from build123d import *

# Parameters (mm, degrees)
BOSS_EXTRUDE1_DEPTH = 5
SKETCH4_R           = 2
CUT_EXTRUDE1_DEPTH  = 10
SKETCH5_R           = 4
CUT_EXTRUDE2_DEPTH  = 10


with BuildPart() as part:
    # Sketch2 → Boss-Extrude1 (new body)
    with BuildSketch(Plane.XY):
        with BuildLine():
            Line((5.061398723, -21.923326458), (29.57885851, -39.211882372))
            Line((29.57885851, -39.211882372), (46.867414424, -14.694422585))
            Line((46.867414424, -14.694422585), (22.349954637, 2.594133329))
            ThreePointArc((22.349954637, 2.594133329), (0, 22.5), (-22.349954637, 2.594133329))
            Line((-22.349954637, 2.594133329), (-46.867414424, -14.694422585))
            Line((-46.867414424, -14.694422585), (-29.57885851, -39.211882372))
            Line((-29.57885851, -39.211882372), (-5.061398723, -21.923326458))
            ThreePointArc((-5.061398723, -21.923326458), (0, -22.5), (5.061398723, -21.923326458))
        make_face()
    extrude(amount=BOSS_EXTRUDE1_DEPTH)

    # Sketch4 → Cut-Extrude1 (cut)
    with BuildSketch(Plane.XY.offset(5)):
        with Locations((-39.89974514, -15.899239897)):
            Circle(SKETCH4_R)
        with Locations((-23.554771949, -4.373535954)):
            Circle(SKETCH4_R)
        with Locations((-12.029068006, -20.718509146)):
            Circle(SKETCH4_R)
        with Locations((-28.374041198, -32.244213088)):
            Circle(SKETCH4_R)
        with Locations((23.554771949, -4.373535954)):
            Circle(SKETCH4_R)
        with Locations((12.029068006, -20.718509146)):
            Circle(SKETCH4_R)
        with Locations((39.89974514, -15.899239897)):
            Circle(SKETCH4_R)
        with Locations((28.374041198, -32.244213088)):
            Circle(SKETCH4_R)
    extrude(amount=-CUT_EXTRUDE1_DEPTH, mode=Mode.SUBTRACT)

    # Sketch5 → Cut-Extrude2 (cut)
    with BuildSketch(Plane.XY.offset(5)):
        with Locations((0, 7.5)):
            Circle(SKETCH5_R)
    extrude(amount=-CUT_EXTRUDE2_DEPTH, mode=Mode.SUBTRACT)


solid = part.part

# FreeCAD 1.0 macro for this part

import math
import FreeCAD as App
import Part
import Sketcher

V = App.Vector

doc = App.newDocument("Part")
params = doc.addObject("Spreadsheet::Sheet", "Params")
for row, (alias, value) in enumerate([
    ("sketch1_radius", "22.5 mm"),
    ("sketch1_length", "30 mm"),
    ("pad1_length", "5 mm"),
    ("sketch2_diameter", "4 mm"),
    ("pocket1_length", "10 mm"),
    ("sketch3_diameter", "8 mm"),
    ("pocket2_length", "10 mm"),
], start=1):
    params.set(f"A{row}", alias)
    params.set(f"B{row}", "=" + value)
    params.setAlias(f"B{row}", alias)

body = doc.addObject("PartDesign::Body", "Body")

# Sketch on XY plane
sketch1 = body.newObject("Sketcher::SketchObject", "Sketch")
sketch1.AttachmentSupport = (doc.getObject("XY_Plane"), [""])
sketch1.MapMode = "FlatFace"
sketch1.addGeometry(Part.LineSegment(V(5.061399, -21.923326, 0), V(29.578859, -39.211882, 0)), False)
sketch1.addGeometry(Part.LineSegment(V(29.578859, -39.211882, 0), V(46.867414, -14.694423, 0)), False)
sketch1.addGeometry(Part.LineSegment(V(46.867414, -14.694423, 0), V(22.349955, 2.594133, 0)), False)
sketch1.addGeometry(Part.ArcOfCircle(Part.Circle(V(0, 0, 0), V(0, 0, 1), 22.5), math.radians(6.62063), math.radians(173.37937)), False)
sketch1.addGeometry(Part.LineSegment(V(-22.349955, 2.594133, 0), V(-46.867414, -14.694423, 0)), False)
sketch1.addGeometry(Part.LineSegment(V(-46.867414, -14.694423, 0), V(-29.578859, -39.211882, 0)), False)
sketch1.addGeometry(Part.LineSegment(V(-29.578859, -39.211882, 0), V(-5.061399, -21.923326, 0)), False)
sketch1.addGeometry(Part.ArcOfCircle(Part.Circle(V(0, 0, 0), V(0, 0, 1), 22.5), math.radians(-103), math.radians(-77)), False)
sketch1.addConstraint(Sketcher.Constraint("Coincident", 0, 2, 1, 1))
sketch1.addConstraint(Sketcher.Constraint("Coincident", 1, 2, 2, 1))
sketch1.addConstraint(Sketcher.Constraint("Coincident", 2, 2, 3, 1))
sketch1.addConstraint(Sketcher.Constraint("Coincident", 3, 2, 4, 1))
sketch1.addConstraint(Sketcher.Constraint("Coincident", 4, 2, 5, 1))
sketch1.addConstraint(Sketcher.Constraint("Coincident", 5, 2, 6, 1))
sketch1.addConstraint(Sketcher.Constraint("Coincident", 6, 2, 7, 1))
sketch1.addConstraint(Sketcher.Constraint("Coincident", 7, 2, 0, 1))
sketch1.addConstraint(Sketcher.Constraint("Coincident", 3, 3, -1, 1))
sketch1.addConstraint(Sketcher.Constraint("Coincident", 7, 3, -1, 1))
sketch1.addConstraint(Sketcher.Constraint("Equal", 3, 7))
sketch1.addConstraint(Sketcher.Constraint("Symmetric", 1, 2, 4, 2, -2))
sketch1.addConstraint(Sketcher.Constraint("Symmetric", 0, 2, 5, 2, -2))
sketch1.addConstraint(Sketcher.Constraint("Perpendicular", 0, 1))
sketch1.addConstraint(Sketcher.Constraint("Perpendicular", 1, 2))
sketch1.addConstraint(Sketcher.Constraint("Perpendicular", 4, 5))
sketch1.addConstraint(Sketcher.Constraint("Perpendicular", 5, 6))
sketch1.addConstraint(Sketcher.Constraint("Equal", 0, 1))
sketch1.addConstraint(Sketcher.Constraint("Equal", 1, 2))
sketch1.addConstraint(Sketcher.Constraint("Radius", 3, 22.5))
sketch1.addConstraint(Sketcher.Constraint("Distance", 0, 30.0))
sketch1.addConstraint(Sketcher.Constraint("DistanceX", 6, 2, -1, 1, 5.061399))
sketch1.setExpression("Constraints[19]", "Params.sketch1_radius")
sketch1.setExpression("Constraints[20]", "Params.sketch1_length")
pad1 = body.newObject("PartDesign::Pad", "Pad")
pad1.Profile = sketch1
pad1.setExpression("Length", "Params.pad1_length")

# Sketch on XY plane
sketch2 = body.newObject("Sketcher::SketchObject", "Sketch001")
sketch2.AttachmentSupport = (doc.getObject("XY_Plane"), [""])
sketch2.MapMode = "FlatFace"
sketch2.AttachmentOffset = App.Placement(V(0, 0, 5), App.Rotation())
sketch2.addGeometry(Part.Circle(V(-39.899745, -15.89924, 0), V(0, 0, 1), 2), False)
sketch2.addGeometry(Part.Circle(V(-23.554772, -4.373536, 0), V(0, 0, 1), 2), False)
sketch2.addGeometry(Part.Circle(V(-12.029068, -20.718509, 0), V(0, 0, 1), 2), False)
sketch2.addGeometry(Part.Circle(V(-28.374041, -32.244213, 0), V(0, 0, 1), 2), False)
sketch2.addGeometry(Part.Circle(V(23.554772, -4.373536, 0), V(0, 0, 1), 2), False)
sketch2.addGeometry(Part.Circle(V(12.029068, -20.718509, 0), V(0, 0, 1), 2), False)
sketch2.addGeometry(Part.Circle(V(39.899745, -15.89924, 0), V(0, 0, 1), 2), False)
sketch2.addGeometry(Part.Circle(V(28.374041, -32.244213, 0), V(0, 0, 1), 2), False)
sketch2.addConstraint(Sketcher.Constraint("Equal", 0, 1))
sketch2.addConstraint(Sketcher.Constraint("Equal", 1, 2))
sketch2.addConstraint(Sketcher.Constraint("Equal", 2, 3))
sketch2.addConstraint(Sketcher.Constraint("Equal", 3, 4))
sketch2.addConstraint(Sketcher.Constraint("Equal", 4, 5))
sketch2.addConstraint(Sketcher.Constraint("Equal", 5, 6))
sketch2.addConstraint(Sketcher.Constraint("Equal", 6, 7))
sketch2.addConstraint(Sketcher.Constraint("Symmetric", 1, 3, 4, 3, -2))
sketch2.addConstraint(Sketcher.Constraint("Symmetric", 2, 3, 5, 3, -2))
sketch2.addConstraint(Sketcher.Constraint("Symmetric", 0, 3, 6, 3, -2))
sketch2.addConstraint(Sketcher.Constraint("Symmetric", 3, 3, 7, 3, -2))
sketch2.addConstraint(Sketcher.Constraint("Diameter", 0, 4.0))
sketch2.addConstraint(Sketcher.Constraint("DistanceY", 0, 3, -1, 1, 15.89924))
sketch2.addConstraint(Sketcher.Constraint("DistanceX", 1, 3, -1, 1, 23.554772))
sketch2.addConstraint(Sketcher.Constraint("DistanceX", 2, 3, -1, 1, 12.029068))
sketch2.addConstraint(Sketcher.Constraint("DistanceY", 2, 3, -1, 1, 20.718509))
sketch2.addConstraint(Sketcher.Constraint("DistanceX", 3, 3, -1, 1, 28.374041))
sketch2.addConstraint(Sketcher.Constraint("DistanceX", 0, 3, -1, 1, 39.899745))
sketch2.addConstraint(Sketcher.Constraint("DistanceY", 1, 3, -1, 1, 4.373536))
sketch2.addConstraint(Sketcher.Constraint("DistanceY", 3, 3, -1, 1, 32.244213))
sketch2.setExpression("Constraints[11]", "Params.sketch2_diameter")
pocket1 = body.newObject("PartDesign::Pocket", "Pocket")
pocket1.Profile = sketch2
pocket1.setExpression("Length", "Params.pocket1_length")

# Sketch on XY plane
sketch3 = body.newObject("Sketcher::SketchObject", "Sketch002")
sketch3.AttachmentSupport = (doc.getObject("XY_Plane"), [""])
sketch3.MapMode = "FlatFace"
sketch3.AttachmentOffset = App.Placement(V(0, 0, 5), App.Rotation())
sketch3.addGeometry(Part.Circle(V(0, 7.5, 0), V(0, 0, 1), 4), False)
sketch3.addConstraint(Sketcher.Constraint("PointOnObject", 0, 3, -2))
sketch3.addConstraint(Sketcher.Constraint("Diameter", 0, 8.0))
sketch3.addConstraint(Sketcher.Constraint("DistanceY", -1, 1, 0, 3, 7.5))
sketch3.setExpression("Constraints[1]", "Params.sketch3_diameter")
pocket2 = body.newObject("PartDesign::Pocket", "Pocket001")
pocket2.Profile = sketch3
pocket2.setExpression("Length", "Params.pocket2_length")

doc.recompute()
